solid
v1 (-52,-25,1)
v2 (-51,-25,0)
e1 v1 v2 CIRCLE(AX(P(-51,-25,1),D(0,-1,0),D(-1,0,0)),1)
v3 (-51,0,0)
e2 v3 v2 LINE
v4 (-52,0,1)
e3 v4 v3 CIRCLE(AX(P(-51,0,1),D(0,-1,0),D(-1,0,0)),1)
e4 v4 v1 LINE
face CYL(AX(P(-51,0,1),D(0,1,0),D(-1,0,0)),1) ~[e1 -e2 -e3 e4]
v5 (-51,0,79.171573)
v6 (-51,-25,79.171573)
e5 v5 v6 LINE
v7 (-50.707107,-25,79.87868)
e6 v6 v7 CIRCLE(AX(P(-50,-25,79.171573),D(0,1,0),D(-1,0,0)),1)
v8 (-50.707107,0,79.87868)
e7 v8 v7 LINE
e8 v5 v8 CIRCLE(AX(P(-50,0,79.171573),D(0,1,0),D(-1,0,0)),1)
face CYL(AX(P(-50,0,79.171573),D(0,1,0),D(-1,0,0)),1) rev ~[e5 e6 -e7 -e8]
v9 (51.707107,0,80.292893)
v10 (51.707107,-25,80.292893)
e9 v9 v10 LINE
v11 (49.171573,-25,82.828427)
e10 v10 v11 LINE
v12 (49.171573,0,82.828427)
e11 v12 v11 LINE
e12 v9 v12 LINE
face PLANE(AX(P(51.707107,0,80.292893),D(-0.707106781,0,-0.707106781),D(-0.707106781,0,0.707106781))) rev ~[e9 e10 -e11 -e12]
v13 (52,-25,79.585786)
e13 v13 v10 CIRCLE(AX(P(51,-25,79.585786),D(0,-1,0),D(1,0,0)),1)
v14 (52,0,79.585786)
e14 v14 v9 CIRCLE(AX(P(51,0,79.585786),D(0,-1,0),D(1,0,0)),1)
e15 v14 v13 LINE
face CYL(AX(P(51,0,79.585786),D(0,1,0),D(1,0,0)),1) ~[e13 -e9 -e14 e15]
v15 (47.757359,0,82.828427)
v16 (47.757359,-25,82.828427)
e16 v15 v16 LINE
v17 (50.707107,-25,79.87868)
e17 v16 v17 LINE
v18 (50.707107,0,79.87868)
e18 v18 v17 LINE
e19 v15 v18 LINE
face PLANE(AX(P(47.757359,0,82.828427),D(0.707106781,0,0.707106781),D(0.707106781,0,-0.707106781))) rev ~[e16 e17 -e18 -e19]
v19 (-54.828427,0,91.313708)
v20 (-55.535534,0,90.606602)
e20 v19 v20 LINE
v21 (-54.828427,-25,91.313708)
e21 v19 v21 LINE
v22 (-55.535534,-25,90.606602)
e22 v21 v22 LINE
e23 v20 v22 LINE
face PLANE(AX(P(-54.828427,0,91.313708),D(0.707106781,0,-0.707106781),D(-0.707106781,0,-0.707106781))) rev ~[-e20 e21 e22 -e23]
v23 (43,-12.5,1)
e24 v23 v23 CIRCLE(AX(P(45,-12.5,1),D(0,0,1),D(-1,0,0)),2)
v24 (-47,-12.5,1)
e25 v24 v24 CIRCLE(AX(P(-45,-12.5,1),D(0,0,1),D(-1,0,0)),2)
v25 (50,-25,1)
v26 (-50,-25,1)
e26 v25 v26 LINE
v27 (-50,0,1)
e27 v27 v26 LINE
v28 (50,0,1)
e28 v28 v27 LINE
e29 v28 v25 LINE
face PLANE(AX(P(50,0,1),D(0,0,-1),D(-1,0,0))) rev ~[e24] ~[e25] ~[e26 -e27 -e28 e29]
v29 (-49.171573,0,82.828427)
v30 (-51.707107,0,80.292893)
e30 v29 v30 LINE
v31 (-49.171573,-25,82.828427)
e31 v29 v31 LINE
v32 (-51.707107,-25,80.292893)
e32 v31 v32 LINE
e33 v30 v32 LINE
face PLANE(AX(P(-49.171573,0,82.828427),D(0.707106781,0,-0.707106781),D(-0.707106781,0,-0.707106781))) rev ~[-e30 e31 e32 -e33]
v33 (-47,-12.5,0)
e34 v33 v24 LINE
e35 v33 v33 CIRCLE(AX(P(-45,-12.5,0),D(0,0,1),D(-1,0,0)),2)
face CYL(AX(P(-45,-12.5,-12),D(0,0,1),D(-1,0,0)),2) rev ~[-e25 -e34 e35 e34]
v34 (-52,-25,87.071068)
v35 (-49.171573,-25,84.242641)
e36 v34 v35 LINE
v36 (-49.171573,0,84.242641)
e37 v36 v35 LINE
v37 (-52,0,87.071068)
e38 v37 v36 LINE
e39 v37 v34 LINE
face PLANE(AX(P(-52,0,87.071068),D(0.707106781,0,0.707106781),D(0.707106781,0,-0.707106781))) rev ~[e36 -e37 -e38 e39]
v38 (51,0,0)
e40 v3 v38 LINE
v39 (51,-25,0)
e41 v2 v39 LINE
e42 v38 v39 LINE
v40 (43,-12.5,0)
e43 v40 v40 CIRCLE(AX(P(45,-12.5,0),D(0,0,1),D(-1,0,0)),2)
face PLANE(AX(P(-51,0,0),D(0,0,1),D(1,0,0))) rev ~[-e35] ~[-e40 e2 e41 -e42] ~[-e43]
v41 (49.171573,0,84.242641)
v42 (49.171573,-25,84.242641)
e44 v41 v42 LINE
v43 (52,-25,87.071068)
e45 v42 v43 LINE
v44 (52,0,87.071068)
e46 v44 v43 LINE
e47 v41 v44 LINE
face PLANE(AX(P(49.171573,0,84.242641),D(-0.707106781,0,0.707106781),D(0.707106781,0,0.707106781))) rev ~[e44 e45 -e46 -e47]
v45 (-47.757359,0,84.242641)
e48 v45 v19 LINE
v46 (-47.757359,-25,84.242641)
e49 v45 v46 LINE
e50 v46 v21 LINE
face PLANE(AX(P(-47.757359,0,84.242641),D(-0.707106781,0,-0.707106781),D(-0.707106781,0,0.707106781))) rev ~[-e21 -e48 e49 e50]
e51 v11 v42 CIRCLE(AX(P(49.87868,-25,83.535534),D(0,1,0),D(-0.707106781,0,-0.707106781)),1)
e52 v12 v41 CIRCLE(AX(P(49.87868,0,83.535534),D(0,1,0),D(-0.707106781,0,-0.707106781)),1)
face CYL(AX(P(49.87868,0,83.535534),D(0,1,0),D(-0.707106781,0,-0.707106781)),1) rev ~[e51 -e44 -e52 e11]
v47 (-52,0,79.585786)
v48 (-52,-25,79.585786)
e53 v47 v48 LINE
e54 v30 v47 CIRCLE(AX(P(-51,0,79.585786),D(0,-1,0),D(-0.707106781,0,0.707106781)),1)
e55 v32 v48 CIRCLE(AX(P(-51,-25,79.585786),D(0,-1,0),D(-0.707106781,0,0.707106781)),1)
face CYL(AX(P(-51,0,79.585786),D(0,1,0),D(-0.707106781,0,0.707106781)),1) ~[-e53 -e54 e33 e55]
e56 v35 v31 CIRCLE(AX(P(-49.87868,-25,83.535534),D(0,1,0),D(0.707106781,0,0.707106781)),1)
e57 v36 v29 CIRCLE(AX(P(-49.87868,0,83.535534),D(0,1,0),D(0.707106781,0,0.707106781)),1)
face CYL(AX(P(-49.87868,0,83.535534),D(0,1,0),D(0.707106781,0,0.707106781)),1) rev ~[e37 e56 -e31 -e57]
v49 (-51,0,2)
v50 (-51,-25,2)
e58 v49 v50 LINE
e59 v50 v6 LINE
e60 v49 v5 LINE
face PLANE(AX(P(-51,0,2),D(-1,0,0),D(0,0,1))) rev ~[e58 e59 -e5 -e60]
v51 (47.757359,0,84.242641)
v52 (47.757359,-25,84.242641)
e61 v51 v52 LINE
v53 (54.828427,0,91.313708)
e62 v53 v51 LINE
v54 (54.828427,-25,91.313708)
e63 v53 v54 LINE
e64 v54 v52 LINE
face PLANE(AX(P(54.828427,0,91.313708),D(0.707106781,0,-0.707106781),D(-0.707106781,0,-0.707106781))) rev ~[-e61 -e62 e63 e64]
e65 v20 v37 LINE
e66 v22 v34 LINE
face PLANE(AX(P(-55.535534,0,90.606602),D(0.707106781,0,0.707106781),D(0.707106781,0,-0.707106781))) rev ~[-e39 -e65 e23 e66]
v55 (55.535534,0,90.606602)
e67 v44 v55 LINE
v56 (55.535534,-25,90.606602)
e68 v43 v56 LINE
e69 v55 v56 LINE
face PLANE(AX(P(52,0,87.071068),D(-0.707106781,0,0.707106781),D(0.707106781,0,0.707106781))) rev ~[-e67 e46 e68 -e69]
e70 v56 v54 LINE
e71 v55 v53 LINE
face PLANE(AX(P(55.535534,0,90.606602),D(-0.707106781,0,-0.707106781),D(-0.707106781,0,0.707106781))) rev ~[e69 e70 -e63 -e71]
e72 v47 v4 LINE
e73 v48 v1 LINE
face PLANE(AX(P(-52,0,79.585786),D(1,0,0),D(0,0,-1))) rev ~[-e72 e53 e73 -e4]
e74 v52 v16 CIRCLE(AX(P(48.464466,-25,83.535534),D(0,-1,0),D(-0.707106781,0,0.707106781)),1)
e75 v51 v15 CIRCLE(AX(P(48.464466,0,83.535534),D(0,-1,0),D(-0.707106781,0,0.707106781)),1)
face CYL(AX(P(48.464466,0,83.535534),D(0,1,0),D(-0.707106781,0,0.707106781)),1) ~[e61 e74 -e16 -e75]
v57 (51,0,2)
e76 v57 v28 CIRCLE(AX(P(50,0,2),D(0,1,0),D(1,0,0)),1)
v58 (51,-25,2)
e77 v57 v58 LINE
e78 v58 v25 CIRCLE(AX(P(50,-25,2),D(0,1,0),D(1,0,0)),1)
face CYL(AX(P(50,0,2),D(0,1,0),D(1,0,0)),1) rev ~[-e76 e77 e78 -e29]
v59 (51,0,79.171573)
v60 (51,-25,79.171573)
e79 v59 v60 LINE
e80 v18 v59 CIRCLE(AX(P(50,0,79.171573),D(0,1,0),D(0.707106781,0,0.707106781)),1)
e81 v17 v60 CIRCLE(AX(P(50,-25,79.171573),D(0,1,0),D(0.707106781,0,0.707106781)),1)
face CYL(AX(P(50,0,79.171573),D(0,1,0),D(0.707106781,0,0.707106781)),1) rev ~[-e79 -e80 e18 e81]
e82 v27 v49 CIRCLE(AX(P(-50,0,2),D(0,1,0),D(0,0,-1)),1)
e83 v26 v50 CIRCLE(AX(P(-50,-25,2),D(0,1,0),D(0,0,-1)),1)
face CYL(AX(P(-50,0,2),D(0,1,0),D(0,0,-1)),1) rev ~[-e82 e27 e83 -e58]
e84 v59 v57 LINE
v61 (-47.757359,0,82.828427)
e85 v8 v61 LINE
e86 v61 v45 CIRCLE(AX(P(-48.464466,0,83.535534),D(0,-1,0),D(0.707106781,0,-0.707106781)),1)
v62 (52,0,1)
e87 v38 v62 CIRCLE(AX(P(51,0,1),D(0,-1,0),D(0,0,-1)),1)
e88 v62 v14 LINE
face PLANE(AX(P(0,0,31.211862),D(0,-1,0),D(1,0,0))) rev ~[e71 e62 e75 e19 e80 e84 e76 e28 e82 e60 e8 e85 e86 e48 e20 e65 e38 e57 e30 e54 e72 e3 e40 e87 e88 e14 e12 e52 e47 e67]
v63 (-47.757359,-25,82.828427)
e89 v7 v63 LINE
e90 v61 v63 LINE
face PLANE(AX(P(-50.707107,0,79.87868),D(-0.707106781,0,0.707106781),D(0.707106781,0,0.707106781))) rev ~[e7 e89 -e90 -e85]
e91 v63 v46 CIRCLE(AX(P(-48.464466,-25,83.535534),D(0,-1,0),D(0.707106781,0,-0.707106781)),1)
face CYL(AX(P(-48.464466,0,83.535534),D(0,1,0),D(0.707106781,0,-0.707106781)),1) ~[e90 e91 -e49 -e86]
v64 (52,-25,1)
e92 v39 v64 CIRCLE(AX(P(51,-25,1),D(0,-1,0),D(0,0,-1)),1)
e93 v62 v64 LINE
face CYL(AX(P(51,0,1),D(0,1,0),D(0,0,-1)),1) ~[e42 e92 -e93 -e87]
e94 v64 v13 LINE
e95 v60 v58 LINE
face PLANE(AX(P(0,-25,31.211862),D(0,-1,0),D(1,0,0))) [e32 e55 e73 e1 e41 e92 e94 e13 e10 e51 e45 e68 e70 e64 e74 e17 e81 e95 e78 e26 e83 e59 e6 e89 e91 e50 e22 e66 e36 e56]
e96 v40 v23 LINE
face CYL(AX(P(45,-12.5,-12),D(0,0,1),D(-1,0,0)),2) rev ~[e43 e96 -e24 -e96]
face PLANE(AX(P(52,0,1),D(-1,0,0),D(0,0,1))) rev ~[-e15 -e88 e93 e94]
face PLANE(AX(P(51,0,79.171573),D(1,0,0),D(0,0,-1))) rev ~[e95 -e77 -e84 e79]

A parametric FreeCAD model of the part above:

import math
import FreeCAD as App
import Part
import Sketcher
from FreeCAD import Vector
Q = App.Units.Quantity

doc = App.newDocument("Part")
body = doc.addObject("PartDesign::Body", "Body")

sketch1 = body.newObject("Sketcher::SketchObject", "Sketch")
sketch1.AttachmentSupport = (doc.getObject("XZ_Plane"), [""])
sketch1.MapMode = "FlatFace"
sketch1.addGeometry(Part.LineSegment(Vector(-51, 0, 0), Vector(51, 0, 0)), False)
sketch1.addGeometry(Part.ArcOfCircle(Part.Circle(Vector(51, 1, 0), Vector(0, 0, 1), 1), math.radians(-90), math.radians(0)), False)
sketch1.addGeometry(Part.LineSegment(Vector(52, 1, 0), Vector(52, 79.585786, 0)), False)
sketch1.addGeometry(Part.ArcOfCircle(Part.Circle(Vector(51, 79.585786, 0), Vector(0, 0, 1), 1), math.radians(0), math.radians(45)), False)
sketch1.addGeometry(Part.LineSegment(Vector(51.707107, 80.292893, 0), Vector(49.171573, 82.828427, 0)), False)
sketch1.addGeometry(Part.ArcOfCircle(Part.Circle(Vector(49.87868, 83.535534, 0), Vector(0, 0, 1), 1), math.radians(135), math.radians(225)), False)
sketch1.addGeometry(Part.LineSegment(Vector(49.171573, 84.242641, 0), Vector(52, 87.071068, 0)), False)
sketch1.addGeometry(Part.LineSegment(Vector(52, 87.071068, 0), Vector(55.535534, 90.606602, 0)), False)
sketch1.addGeometry(Part.LineSegment(Vector(55.535534, 90.606602, 0), Vector(54.828427, 91.313708, 0)), False)
sketch1.addGeometry(Part.LineSegment(Vector(54.828427, 91.313708, 0), Vector(47.757359, 84.242641, 0)), False)
sketch1.addGeometry(Part.ArcOfCircle(Part.Circle(Vector(48.464466, 83.535534, 0), Vector(0, 0, 1), 1), math.radians(135), math.radians(225)), False)
sketch1.addGeometry(Part.LineSegment(Vector(47.757359, 82.828427, 0), Vector(50.707107, 79.87868, 0)), False)
sketch1.addGeometry(Part.ArcOfCircle(Part.Circle(Vector(50, 79.171573, 0), Vector(0, 0, 1), 1), math.radians(0), math.radians(45)), False)
sketch1.addGeometry(Part.LineSegment(Vector(51, 79.171573, 0), Vector(51, 2, 0)), False)
sketch1.addGeometry(Part.ArcOfCircle(Part.Circle(Vector(50, 2, 0), Vector(0, 0, 1), 1), math.radians(-90), math.radians(0)), False)
sketch1.addGeometry(Part.LineSegment(Vector(50, 1, 0), Vector(-50, 1, 0)), False)
sketch1.addGeometry(Part.ArcOfCircle(Part.Circle(Vector(-50, 2, 0), Vector(0, 0, 1), 1), math.radians(180), math.radians(270)), False)
sketch1.addGeometry(Part.LineSegment(Vector(-51, 2, 0), Vector(-51, 79.171573, 0)), False)
sketch1.addGeometry(Part.ArcOfCircle(Part.Circle(Vector(-50, 79.171573, 0), Vector(0, 0, 1), 1), math.radians(135), math.radians(180)), False)
sketch1.addGeometry(Part.LineSegment(Vector(-50.707107, 79.87868, 0), Vector(-47.757359, 82.828427, 0)), False)
sketch1.addGeometry(Part.ArcOfCircle(Part.Circle(Vector(-48.464466, 83.535534, 0), Vector(0, 0, 1), 1), math.radians(-45), math.radians(45)), False)
sketch1.addGeometry(Part.LineSegment(Vector(-47.757359, 84.242641, 0), Vector(-54.828427, 91.313708, 0)), False)
sketch1.addGeometry(Part.LineSegment(Vector(-54.828427, 91.313708, 0), Vector(-55.535534, 90.606602, 0)), False)
sketch1.addGeometry(Part.LineSegment(Vector(-55.535534, 90.606602, 0), Vector(-52, 87.071068, 0)), False)
sketch1.addGeometry(Part.LineSegment(Vector(-52, 87.071068, 0), Vector(-49.171573, 84.242641, 0)), False)
sketch1.addGeometry(Part.ArcOfCircle(Part.Circle(Vector(-49.87868, 83.535534, 0), Vector(0, 0, 1), 1), math.radians(-45), math.radians(45)), False)
sketch1.addGeometry(Part.LineSegment(Vector(-49.171573, 82.828427, 0), Vector(-51.707107, 80.292893, 0)), False)
sketch1.addGeometry(Part.ArcOfCircle(Part.Circle(Vector(-51, 79.585786, 0), Vector(0, 0, 1), 1), math.radians(135), math.radians(180)), False)
sketch1.addGeometry(Part.LineSegment(Vector(-52, 79.585786, 0), Vector(-52, 1, 0)), False)
sketch1.addGeometry(Part.ArcOfCircle(Part.Circle(Vector(-51, 1, 0), Vector(0, 0, 1), 1), math.radians(180), math.radians(270)), False)
sketch1.addConstraint(Sketcher.Constraint("Tangent", 0, 2, 1, 1))
sketch1.addConstraint(Sketcher.Constraint("Tangent", 1, 2, 2, 1))
sketch1.addConstraint(Sketcher.Constraint("Tangent", 2, 2, 3, 1))
sketch1.addConstraint(Sketcher.Constraint("Tangent", 3, 2, 4, 1))
sketch1.addConstraint(Sketcher.Constraint("Tangent", 4, 2, 5, 2))
sketch1.addConstraint(Sketcher.Constraint("Tangent", 5, 1, 6, 1))
sketch1.addConstraint(Sketcher.Constraint("Coincident", 6, 2, 7, 1))
sketch1.addConstraint(Sketcher.Constraint("Coincident", 7, 2, 8, 1))
sketch1.addConstraint(Sketcher.Constraint("Coincident", 8, 2, 9, 1))
sketch1.addConstraint(Sketcher.Constraint("Tangent", 9, 2, 10, 1))
sketch1.addConstraint(Sketcher.Constraint("Tangent", 10, 2, 11, 1))
sketch1.addConstraint(Sketcher.Constraint("Tangent", 11, 2, 12, 2))
sketch1.addConstraint(Sketcher.Constraint("Tangent", 12, 1, 13, 1))
sketch1.addConstraint(Sketcher.Constraint("Tangent", 13, 2, 14, 2))
sketch1.addConstraint(Sketcher.Constraint("Tangent", 14, 1, 15, 1))
sketch1.addConstraint(Sketcher.Constraint("Tangent", 15, 2, 16, 2))
sketch1.addConstraint(Sketcher.Constraint("Tangent", 16, 1, 17, 1))
sketch1.addConstraint(Sketcher.Constraint("Tangent", 17, 2, 18, 2))
sketch1.addConstraint(Sketcher.Constraint("Tangent", 18, 1, 19, 1))
sketch1.addConstraint(Sketcher.Constraint("Tangent", 19, 2, 20, 1))
sketch1.addConstraint(Sketcher.Constraint("Tangent", 20, 2, 21, 1))
sketch1.addConstraint(Sketcher.Constraint("Coincident", 21, 2, 22, 1))
sketch1.addConstraint(Sketcher.Constraint("Coincident", 22, 2, 23, 1))
sketch1.addConstraint(Sketcher.Constraint("Coincident", 23, 2, 24, 1))
sketch1.addConstraint(Sketcher.Constraint("Tangent", 24, 2, 25, 2))
sketch1.addConstraint(Sketcher.Constraint("Tangent", 25, 1, 26, 1))
sketch1.addConstraint(Sketcher.Constraint("Tangent", 26, 2, 27, 1))
sketch1.addConstraint(Sketcher.Constraint("Tangent", 27, 2, 28, 1))
sketch1.addConstraint(Sketcher.Constraint("Tangent", 28, 2, 29, 1))
sketch1.addConstraint(Sketcher.Constraint("Tangent", 29, 2, 0, 1))
sketch1.addConstraint(Sketcher.Constraint("Horizontal", 0))
sketch1.addConstraint(Sketcher.Constraint("Vertical", 2))
sketch1.addConstraint(Sketcher.Constraint("Vertical", 13))
sketch1.addConstraint(Sketcher.Constraint("Horizontal", 15))
sketch1.addConstraint(Sketcher.Constraint("Vertical", 17))
sketch1.addConstraint(Sketcher.Constraint("Vertical", 28))
sketch1.addConstraint(Sketcher.Constraint("Equal", 1, 3))
sketch1.addConstraint(Sketcher.Constraint("Equal", 3, 5))
sketch1.addConstraint(Sketcher.Constraint("Equal", 5, 10))
sketch1.addConstraint(Sketcher.Constraint("Equal", 10, 12))
sketch1.addConstraint(Sketcher.Constraint("Equal", 12, 14))
sketch1.addConstraint(Sketcher.Constraint("Equal", 14, 16))
sketch1.addConstraint(Sketcher.Constraint("Equal", 16, 18))
sketch1.addConstraint(Sketcher.Constraint("Equal", 18, 20))
sketch1.addConstraint(Sketcher.Constraint("Equal", 20, 25))
sketch1.addConstraint(Sketcher.Constraint("Equal", 25, 27))
sketch1.addConstraint(Sketcher.Constraint("Equal", 27, 29))
sketch1.addConstraint(Sketcher.Constraint("Symmetric", 0, 2, 29, 2, -1, 1))
sketch1.addConstraint(Sketcher.Constraint("Symmetric", 12, 3, 18, 3, -2))
sketch1.addConstraint(Sketcher.Constraint("Symmetric", 10, 3, 20, 3, -2))
sketch1.addConstraint(Sketcher.Constraint("Symmetric", 5, 3, 25, 3, -2))
sketch1.addConstraint(Sketcher.Constraint("Symmetric", 8, 2, 21, 2, -2))
sketch1.addConstraint(Sketcher.Constraint("Symmetric", 7, 2, 22, 2, -2))
sketch1.addConstraint(Sketcher.Constraint("Symmetric", 6, 2, 23, 2, -2))
sketch1.addConstraint(Sketcher.Constraint("Perpendicular", 4, 6))
sketch1.addConstraint(Sketcher.Constraint("Parallel", 6, 7))
sketch1.addConstraint(Sketcher.Constraint("Perpendicular", 7, 8))
sketch1.addConstraint(Sketcher.Constraint("Perpendicular", 8, 9))
sketch1.addConstraint(Sketcher.Constraint("Perpendicular", 9, 11))
sketch1.addConstraint(Sketcher.Constraint("Perpendicular", 11, 19))
sketch1.addConstraint(Sketcher.Constraint("Perpendicular", 24, 26))
sketch1.addConstraint(Sketcher.Constraint("Horizontal", 5, 3, 10, 3))
sketch1.addConstraint(Sketcher.Constraint("Horizontal", 1, 2, 14, 1))
sketch1.addConstraint(Sketcher.Constraint("Vertical", 2, 2, 6, 2))
sketch1.addConstraint(Sketcher.Constraint("Vertical", 0, 2, 12, 1))
sketch1.addConstraint(Sketcher.Constraint("Radius", 1, Q("1 mm")))
sketch1.addConstraint(Sketcher.Constraint("DistanceX", 0, 1, 0, 2, Q("102 mm")))
sketch1.addConstraint(Sketcher.Constraint("Distance", 6, Q("4 mm")))
sketch1.addConstraint(Sketcher.Constraint("Distance", 7, Q("5 mm")))
sketch1.addConstraint(Sketcher.Constraint("Distance", 8, Q("1 mm")))
sketch1.addConstraint(Sketcher.Constraint("DistanceY", -1, 1, 7, 2, Q("90.606602 mm")))
pad1 = body.newObject("PartDesign::Pad", "Pad")
pad1.Profile = sketch1
pad1.Length = 25

sketch2 = body.newObject("Sketcher::SketchObject", "Sketch001")
sketch2.AttachmentSupport = (doc.getObject("XY_Plane"), [""])
sketch2.MapMode = "FlatFace"
sketch2.addGeometry(Part.Circle(Vector(-45, -12.5, 0), Vector(0, 0, 1), 2), False)
sketch2.addGeometry(Part.Circle(Vector(45, -12.5, 0), Vector(0, 0, 1), 2), False)
sketch2.addConstraint(Sketcher.Constraint("Equal", 0, 1))
sketch2.addConstraint(Sketcher.Constraint("Symmetric", 0, 3, 1, 3, -2))
sketch2.addConstraint(Sketcher.Constraint("Diameter", 0, Q("4 mm")))
sketch2.addConstraint(Sketcher.Constraint("DistanceX", 0, 3, -1, 1, Q("45 mm")))
sketch2.addConstraint(Sketcher.Constraint("DistanceY", 0, 3, -1, 1, Q("12.5 mm")))
doc.recompute()
hole = body.newObject("PartDesign::Hole", "Hole")
hole.Profile = sketch2
hole.ThreadType = "None"
hole.Diameter = 4
hole.DepthType = "Dimension"
hole.Depth = 12
hole.DrillPoint = "Angled"
hole.DrillPointAngle = 118
hole.Reversed = True

doc.recompute()
